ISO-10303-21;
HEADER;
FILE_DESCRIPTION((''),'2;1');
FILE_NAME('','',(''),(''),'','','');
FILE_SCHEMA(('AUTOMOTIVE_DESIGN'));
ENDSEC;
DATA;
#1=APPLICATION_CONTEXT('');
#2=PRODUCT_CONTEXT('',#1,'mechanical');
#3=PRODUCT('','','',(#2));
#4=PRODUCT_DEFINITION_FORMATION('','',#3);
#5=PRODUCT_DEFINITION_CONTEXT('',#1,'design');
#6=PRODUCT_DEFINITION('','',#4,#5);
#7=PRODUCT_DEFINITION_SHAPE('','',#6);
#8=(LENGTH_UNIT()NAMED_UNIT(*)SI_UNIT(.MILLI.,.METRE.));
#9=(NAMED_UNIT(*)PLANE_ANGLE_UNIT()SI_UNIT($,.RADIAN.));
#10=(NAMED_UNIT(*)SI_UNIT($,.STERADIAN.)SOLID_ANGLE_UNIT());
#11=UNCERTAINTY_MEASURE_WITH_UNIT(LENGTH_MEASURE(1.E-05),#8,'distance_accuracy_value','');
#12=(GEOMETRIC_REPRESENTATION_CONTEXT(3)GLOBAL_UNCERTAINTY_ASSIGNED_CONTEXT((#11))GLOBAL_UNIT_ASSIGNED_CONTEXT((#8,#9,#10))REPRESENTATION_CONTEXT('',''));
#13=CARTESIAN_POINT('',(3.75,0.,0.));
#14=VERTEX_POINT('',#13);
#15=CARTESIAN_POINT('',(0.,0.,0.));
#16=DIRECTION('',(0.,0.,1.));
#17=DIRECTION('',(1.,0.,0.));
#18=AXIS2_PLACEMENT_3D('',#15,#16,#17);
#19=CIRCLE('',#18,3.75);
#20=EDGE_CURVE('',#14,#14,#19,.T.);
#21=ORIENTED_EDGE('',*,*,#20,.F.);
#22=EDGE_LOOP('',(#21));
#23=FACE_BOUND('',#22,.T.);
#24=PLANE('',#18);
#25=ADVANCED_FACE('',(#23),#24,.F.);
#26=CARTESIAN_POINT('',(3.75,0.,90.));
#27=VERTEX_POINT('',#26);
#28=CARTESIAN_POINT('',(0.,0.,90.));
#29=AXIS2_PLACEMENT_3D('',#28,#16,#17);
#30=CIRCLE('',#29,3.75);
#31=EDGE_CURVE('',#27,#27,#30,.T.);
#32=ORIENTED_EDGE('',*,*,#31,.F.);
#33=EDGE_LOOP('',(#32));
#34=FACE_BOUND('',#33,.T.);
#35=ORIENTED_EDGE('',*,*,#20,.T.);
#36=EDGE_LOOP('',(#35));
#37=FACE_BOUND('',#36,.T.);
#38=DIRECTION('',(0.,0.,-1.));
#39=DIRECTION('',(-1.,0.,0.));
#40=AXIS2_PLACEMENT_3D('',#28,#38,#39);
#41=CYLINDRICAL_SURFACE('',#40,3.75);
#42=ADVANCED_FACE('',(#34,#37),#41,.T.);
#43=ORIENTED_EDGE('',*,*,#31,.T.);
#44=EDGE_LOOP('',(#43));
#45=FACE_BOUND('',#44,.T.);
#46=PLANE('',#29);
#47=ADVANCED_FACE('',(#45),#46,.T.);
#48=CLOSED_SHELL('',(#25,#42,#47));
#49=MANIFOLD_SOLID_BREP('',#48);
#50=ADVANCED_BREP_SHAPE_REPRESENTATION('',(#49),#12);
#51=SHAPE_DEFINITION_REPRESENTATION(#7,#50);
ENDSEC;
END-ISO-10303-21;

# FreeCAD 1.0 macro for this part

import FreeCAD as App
import Part
import Sketcher

V = App.Vector
Q = App.Units.Quantity

doc = App.newDocument("Part")
body = doc.addObject("PartDesign::Body", "Body")

sketch1 = body.newObject("Sketcher::SketchObject", "Sketch")
sketch1.AttachmentSupport = (doc.getObject("XY_Plane"), [""])
sketch1.MapMode = "FlatFace"
sketch1.addGeometry(Part.Circle(V(0, 0, 0), V(0, 0, 1), 3.8), False)
sketch1.addConstraint(Sketcher.Constraint("Coincident", 0, 3, -1, 1))
sketch1.addConstraint(Sketcher.Constraint("Diameter", 0, Q("7.5 mm")))
pad1 = body.newObject("PartDesign::Pad", "Pad")
pad1.Profile = sketch1
pad1.Length = 90

doc.recompute()
